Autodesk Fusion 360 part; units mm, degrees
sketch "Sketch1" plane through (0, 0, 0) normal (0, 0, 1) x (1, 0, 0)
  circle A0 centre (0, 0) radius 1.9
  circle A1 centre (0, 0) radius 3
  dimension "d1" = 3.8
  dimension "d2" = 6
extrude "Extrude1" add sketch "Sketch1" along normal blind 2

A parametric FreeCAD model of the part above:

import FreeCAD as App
import Part
import Sketcher

doc = App.newDocument("Part")
body = doc.addObject("PartDesign::Body", "Body")

# Sketch on XY plane
sketch1 = body.newObject("Sketcher::SketchObject", "Sketch")
sketch1.AttachmentSupport = (doc.getObject("XY_Plane"), [""])
sketch1.MapMode = "FlatFace"
sketch1.addGeometry(Part.Circle(App.Vector(0, 0, 0), App.Vector(0, 0, 1), 3), False)
sketch1.addGeometry(Part.Circle(App.Vector(0, 0, 0), App.Vector(0, 0, 1), 1.9), False)
sketch1.addConstraint(Sketcher.Constraint("Coincident", 0, 3, -1, 1))
sketch1.addConstraint(Sketcher.Constraint("Coincident", 1, 3, -1, 1))
sketch1.addConstraint(Sketcher.Constraint("Diameter", 0, 6.0))
sketch1.addConstraint(Sketcher.Constraint("Diameter", 1, 3.8))
pad1 = body.newObject("PartDesign::Pad", "Pad")
pad1.Profile = sketch1
pad1.Length = 2

doc.recompute()
